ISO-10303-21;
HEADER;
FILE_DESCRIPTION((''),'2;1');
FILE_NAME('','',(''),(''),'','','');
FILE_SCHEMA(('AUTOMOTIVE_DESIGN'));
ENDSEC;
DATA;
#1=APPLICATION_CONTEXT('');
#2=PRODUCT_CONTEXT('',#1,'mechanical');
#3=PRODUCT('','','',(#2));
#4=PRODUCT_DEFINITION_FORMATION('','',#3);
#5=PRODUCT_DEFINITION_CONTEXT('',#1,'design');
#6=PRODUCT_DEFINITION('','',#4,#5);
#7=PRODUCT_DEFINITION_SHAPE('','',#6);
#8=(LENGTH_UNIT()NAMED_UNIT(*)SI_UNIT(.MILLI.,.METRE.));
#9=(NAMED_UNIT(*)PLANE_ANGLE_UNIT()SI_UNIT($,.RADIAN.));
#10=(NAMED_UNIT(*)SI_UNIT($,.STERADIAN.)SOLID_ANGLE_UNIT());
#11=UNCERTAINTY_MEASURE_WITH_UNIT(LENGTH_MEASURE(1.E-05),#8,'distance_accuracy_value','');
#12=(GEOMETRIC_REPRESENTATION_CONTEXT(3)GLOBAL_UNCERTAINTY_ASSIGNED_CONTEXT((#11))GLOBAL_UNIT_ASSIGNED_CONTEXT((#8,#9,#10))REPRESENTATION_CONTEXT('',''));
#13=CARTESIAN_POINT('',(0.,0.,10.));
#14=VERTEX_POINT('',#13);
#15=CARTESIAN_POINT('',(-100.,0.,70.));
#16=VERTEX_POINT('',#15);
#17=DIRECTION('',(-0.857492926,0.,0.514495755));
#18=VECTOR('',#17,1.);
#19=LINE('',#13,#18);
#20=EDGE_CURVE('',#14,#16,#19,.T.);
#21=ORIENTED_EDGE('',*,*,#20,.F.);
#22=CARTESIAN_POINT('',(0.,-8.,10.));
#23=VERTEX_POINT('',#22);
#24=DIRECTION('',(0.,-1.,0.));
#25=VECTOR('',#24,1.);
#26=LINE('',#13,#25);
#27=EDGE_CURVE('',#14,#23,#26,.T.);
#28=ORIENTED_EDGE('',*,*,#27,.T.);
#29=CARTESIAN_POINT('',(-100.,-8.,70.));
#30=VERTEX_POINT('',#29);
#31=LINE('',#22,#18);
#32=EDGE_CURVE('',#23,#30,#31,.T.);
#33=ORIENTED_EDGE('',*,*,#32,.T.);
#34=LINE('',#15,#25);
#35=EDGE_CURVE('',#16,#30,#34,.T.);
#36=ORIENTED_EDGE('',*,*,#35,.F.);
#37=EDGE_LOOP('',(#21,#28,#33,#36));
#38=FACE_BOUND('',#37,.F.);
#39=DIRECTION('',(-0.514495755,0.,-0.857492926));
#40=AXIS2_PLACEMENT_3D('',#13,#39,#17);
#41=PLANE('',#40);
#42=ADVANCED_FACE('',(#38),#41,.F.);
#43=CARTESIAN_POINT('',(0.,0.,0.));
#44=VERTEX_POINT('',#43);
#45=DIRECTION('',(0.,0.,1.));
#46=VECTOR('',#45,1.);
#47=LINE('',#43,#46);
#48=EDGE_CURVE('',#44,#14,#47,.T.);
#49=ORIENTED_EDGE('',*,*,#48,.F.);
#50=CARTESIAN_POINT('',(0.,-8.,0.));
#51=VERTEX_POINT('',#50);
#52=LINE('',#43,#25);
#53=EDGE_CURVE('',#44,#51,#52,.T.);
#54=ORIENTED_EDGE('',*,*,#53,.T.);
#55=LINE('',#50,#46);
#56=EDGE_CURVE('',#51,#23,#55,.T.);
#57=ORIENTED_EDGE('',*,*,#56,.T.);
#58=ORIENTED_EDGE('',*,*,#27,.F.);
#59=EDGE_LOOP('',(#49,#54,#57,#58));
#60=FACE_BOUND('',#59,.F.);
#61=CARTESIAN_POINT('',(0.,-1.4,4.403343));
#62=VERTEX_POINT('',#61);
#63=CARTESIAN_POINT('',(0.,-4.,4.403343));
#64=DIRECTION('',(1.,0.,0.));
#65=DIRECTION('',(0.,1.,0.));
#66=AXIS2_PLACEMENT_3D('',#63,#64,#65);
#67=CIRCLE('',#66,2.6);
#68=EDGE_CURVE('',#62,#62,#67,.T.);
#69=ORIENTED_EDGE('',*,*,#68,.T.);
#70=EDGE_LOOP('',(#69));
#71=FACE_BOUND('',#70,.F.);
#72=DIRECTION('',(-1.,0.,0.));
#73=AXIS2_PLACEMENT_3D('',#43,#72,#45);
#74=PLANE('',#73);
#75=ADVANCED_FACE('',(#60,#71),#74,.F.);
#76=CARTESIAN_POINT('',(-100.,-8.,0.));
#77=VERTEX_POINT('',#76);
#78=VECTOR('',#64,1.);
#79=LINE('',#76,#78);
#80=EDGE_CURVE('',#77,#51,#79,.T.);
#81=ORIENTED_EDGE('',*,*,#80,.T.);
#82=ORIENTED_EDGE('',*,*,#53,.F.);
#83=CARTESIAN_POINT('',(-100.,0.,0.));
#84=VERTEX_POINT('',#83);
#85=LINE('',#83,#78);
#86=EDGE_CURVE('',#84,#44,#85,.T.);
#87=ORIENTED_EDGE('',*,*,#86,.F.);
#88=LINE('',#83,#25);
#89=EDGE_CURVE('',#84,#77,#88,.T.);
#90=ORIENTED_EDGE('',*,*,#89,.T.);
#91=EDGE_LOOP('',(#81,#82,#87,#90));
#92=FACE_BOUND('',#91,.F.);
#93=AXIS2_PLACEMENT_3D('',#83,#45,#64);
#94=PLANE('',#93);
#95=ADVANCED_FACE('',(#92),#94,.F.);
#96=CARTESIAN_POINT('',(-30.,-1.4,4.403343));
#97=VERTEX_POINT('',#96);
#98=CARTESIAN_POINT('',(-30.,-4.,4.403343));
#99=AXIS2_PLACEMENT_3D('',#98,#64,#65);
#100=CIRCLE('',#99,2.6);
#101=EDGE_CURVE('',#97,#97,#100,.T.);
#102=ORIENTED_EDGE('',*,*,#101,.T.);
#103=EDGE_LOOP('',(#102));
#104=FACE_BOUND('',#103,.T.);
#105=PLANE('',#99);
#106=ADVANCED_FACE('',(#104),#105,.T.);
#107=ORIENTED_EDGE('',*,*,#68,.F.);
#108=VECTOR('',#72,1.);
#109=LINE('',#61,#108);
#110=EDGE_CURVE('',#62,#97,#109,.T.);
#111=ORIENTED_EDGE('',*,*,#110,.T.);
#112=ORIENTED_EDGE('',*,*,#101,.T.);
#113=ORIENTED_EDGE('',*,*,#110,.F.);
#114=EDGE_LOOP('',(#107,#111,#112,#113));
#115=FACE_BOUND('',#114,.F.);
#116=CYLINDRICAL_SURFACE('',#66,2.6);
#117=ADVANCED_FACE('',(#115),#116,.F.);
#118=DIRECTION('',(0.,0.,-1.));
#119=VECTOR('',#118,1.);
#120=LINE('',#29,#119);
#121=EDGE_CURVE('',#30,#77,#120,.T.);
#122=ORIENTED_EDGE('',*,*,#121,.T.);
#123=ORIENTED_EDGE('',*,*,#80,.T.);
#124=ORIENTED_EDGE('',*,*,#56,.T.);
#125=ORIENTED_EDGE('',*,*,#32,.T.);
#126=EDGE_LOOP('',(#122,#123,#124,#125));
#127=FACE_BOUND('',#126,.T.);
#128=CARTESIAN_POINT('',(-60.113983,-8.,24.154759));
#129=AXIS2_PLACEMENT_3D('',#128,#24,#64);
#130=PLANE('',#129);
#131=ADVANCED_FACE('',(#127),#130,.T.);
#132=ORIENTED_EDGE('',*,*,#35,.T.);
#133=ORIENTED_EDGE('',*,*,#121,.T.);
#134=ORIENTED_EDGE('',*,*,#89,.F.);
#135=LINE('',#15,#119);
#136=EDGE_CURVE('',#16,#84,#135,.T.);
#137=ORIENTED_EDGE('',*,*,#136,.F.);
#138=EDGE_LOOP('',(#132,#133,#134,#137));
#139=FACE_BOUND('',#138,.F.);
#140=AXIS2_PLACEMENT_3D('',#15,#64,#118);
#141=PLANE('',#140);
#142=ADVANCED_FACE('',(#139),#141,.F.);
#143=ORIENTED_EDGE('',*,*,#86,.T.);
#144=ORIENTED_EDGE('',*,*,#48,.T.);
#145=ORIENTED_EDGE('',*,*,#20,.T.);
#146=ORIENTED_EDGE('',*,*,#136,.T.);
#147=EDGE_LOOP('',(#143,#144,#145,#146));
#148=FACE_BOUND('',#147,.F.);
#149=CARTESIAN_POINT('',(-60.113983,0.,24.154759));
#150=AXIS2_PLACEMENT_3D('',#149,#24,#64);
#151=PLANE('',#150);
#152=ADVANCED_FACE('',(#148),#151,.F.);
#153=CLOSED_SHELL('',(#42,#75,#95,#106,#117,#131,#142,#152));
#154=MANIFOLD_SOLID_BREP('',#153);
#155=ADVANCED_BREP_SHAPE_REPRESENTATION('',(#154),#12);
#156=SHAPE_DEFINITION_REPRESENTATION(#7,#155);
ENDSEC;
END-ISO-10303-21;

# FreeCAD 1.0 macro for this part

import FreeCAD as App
import Part
import Sketcher
from FreeCAD import Vector

doc = App.newDocument("Part")
params = doc.addObject("Spreadsheet::Sheet", "Params")
for row, (alias, value) in enumerate([
    ("sketch1_width", "100 mm"),
    ("sketch1_height", "10 mm"),
    ("sketch1_height2", "70 mm"),
    ("pad1_length", "8 mm"),
    ("sketch2_diameter", "5.2 mm"),
    ("pocket1_length", "30 mm"),
], start=1):
    params.set(f"A{row}", alias)
    params.set(f"B{row}", "=" + value)
    params.setAlias(f"B{row}", alias)

body = doc.addObject("PartDesign::Body", "Body")

# Sketch on XZ plane
sketch1 = body.newObject("Sketcher::SketchObject", "Sketch")
sketch1.AttachmentSupport = (doc.getObject("XZ_Plane"), [""])
sketch1.MapMode = "FlatFace"
sketch1.addGeometry(Part.LineSegment(Vector(-100, 0, 0), Vector(0, 0, 0)), False)
sketch1.addGeometry(Part.LineSegment(Vector(0, 0, 0), Vector(0, 10, 0)), False)
sketch1.addGeometry(Part.LineSegment(Vector(0, 10, 0), Vector(-100, 70, 0)), False)
sketch1.addGeometry(Part.LineSegment(Vector(-100, 70, 0), Vector(-100, 0, 0)), False)
sketch1.addConstraint(Sketcher.Constraint("Coincident", 0, 2, 1, 1))
sketch1.addConstraint(Sketcher.Constraint("Coincident", 1, 2, 2, 1))
sketch1.addConstraint(Sketcher.Constraint("Coincident", 2, 2, 3, 1))
sketch1.addConstraint(Sketcher.Constraint("Coincident", 3, 2, 0, 1))
sketch1.addConstraint(Sketcher.Constraint("Horizontal", 0))
sketch1.addConstraint(Sketcher.Constraint("Vertical", 1))
sketch1.addConstraint(Sketcher.Constraint("Vertical", 3))
sketch1.addConstraint(Sketcher.Constraint("Coincident", 0, 2, -1, 1))
sketch1.addConstraint(Sketcher.Constraint("DistanceX", 0, 1, 0, 2, 100.0))
sketch1.addConstraint(Sketcher.Constraint("DistanceY", 1, 1, 1, 2, 10.0))
sketch1.addConstraint(Sketcher.Constraint("DistanceY", 3, 2, 3, 1, 70.0))
sketch1.setExpression("Constraints[8]", "Params.sketch1_width")
sketch1.setExpression("Constraints[9]", "Params.sketch1_height")
sketch1.setExpression("Constraints[10]", "Params.sketch1_height2")
pad1 = body.newObject("PartDesign::Pad", "Pad")
pad1.Profile = sketch1
pad1.setExpression("Length", "Params.pad1_length")

# Sketch on YZ plane
sketch2 = body.newObject("Sketcher::SketchObject", "Sketch001")
sketch2.AttachmentSupport = (doc.getObject("YZ_Plane"), [""])
sketch2.MapMode = "FlatFace"
sketch2.addGeometry(Part.Circle(Vector(-4, 4.4, 0), Vector(0, 0, 1), 2.6), False)
sketch2.addConstraint(Sketcher.Constraint("Diameter", 0, 5.2))
sketch2.addConstraint(Sketcher.Constraint("DistanceX", 0, 3, -1, 1, 4.0))
sketch2.addConstraint(Sketcher.Constraint("DistanceY", -1, 1, 0, 3, 4.403343))
sketch2.setExpression("Constraints[0]", "Params.sketch2_diameter")
pocket1 = body.newObject("PartDesign::Pocket", "Pocket")
pocket1.Profile = sketch2
pocket1.setExpression("Length", "Params.pocket1_length")

doc.recompute()
